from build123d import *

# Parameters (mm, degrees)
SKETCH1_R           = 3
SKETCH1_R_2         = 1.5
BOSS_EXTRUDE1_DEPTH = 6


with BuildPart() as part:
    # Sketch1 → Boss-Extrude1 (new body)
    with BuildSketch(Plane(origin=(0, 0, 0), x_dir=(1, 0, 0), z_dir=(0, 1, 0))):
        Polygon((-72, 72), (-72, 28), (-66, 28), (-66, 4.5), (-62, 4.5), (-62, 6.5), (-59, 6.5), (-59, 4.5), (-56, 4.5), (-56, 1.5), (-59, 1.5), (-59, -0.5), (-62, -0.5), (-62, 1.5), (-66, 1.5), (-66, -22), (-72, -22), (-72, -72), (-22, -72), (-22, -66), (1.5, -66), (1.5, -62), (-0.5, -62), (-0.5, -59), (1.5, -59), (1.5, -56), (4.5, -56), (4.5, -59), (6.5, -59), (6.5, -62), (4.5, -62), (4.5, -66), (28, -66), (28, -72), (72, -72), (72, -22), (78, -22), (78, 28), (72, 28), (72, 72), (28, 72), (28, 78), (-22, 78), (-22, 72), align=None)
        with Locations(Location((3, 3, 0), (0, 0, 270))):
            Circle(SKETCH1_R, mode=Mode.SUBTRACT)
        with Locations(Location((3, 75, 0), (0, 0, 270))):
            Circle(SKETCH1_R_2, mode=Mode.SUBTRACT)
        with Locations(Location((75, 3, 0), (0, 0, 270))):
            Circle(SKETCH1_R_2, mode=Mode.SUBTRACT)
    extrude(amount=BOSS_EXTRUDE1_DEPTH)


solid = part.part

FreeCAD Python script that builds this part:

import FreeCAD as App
import Part
import Sketcher
Q = App.Units.Quantity


def add_polygon(sketch, points):
    """Adds a closed chain of lines whose ends are joined by coincident constraints."""
    first, n = sketch.GeometryCount, len(points)
    for a, b in zip(points, points[1:] + points[:1]):
        sketch.addGeometry(Part.LineSegment(App.Vector(*a, 0), App.Vector(*b, 0)), False)
    for i in range(n):
        sketch.addConstraint(Sketcher.Constraint("Coincident", first + i, 2, first + (i + 1) % n, 1))

doc = App.newDocument("Part")
body = doc.addObject("PartDesign::Body", "Body")

# Sketch on XZ plane
sketch1 = body.newObject("Sketcher::SketchObject", "Sketch")
sketch1.AttachmentSupport = (doc.getObject("XZ_Plane"), [""])
sketch1.MapMode = "FlatFace"
add_polygon(sketch1, [(-72, -72), (-72, -28), (-66, -28), (-66, -4.5), (-62, -4.5), (-62, -6.5), (-59, -6.5), (-59, -4.5), (-56, -4.5), (-56, -1.5), (-59, -1.5), (-59, 0.5), (-62, 0.5), (-62, -1.5), (-66, -1.5), (-66, 22), (-72, 22), (-72, 72), (-22, 72), (-22, 66), (1.5, 66), (1.5, 62), (-0.5, 62), (-0.5, 59), (1.5, 59), (1.5, 56), (4.5, 56), (4.5, 59), (6.5, 59), (6.5, 62), (4.5, 62), (4.5, 66), (28, 66), (28, 72), (72, 72), (72, 22), (78, 22), (78, -28), (72, -28), (72, -72), (28, -72), (28, -78), (-22, -78), (-22, -72)])  # lines 0-43
sketch1.addGeometry(Part.Circle(App.Vector(3, -3, 0), App.Vector(0, 0, 1), 3), False)  # 44
sketch1.addGeometry(Part.Circle(App.Vector(75, -3, 0), App.Vector(0, 0, 1), 1.5), False)  # 45
sketch1.addGeometry(Part.Circle(App.Vector(3, -75, 0), App.Vector(0, 0, 1), 1.5), False)  # 46
sketch1.addConstraint(Sketcher.Constraint("Vertical", 0))
sketch1.addConstraint(Sketcher.Constraint("Horizontal", 1))
sketch1.addConstraint(Sketcher.Constraint("Vertical", 2))
sketch1.addConstraint(Sketcher.Constraint("Horizontal", 3))
sketch1.addConstraint(Sketcher.Constraint("Vertical", 4))
sketch1.addConstraint(Sketcher.Constraint("Horizontal", 5))
sketch1.addConstraint(Sketcher.Constraint("Vertical", 6))
sketch1.addConstraint(Sketcher.Constraint("Horizontal", 7))
sketch1.addConstraint(Sketcher.Constraint("Vertical", 8))
sketch1.addConstraint(Sketcher.Constraint("Horizontal", 9))
sketch1.addConstraint(Sketcher.Constraint("Vertical", 10))
sketch1.addConstraint(Sketcher.Constraint("Horizontal", 11))
sketch1.addConstraint(Sketcher.Constraint("Vertical", 12))
sketch1.addConstraint(Sketcher.Constraint("Horizontal", 13))
sketch1.addConstraint(Sketcher.Constraint("Vertical", 14))
sketch1.addConstraint(Sketcher.Constraint("Horizontal", 15))
sketch1.addConstraint(Sketcher.Constraint("Vertical", 16))
sketch1.addConstraint(Sketcher.Constraint("Horizontal", 17))
sketch1.addConstraint(Sketcher.Constraint("Vertical", 18))
sketch1.addConstraint(Sketcher.Constraint("Horizontal", 19))
sketch1.addConstraint(Sketcher.Constraint("Vertical", 20))
sketch1.addConstraint(Sketcher.Constraint("Horizontal", 21))
sketch1.addConstraint(Sketcher.Constraint("Vertical", 22))
sketch1.addConstraint(Sketcher.Constraint("Horizontal", 23))
sketch1.addConstraint(Sketcher.Constraint("Vertical", 24))
sketch1.addConstraint(Sketcher.Constraint("Horizontal", 25))
sketch1.addConstraint(Sketcher.Constraint("Vertical", 26))
sketch1.addConstraint(Sketcher.Constraint("Horizontal", 27))
sketch1.addConstraint(Sketcher.Constraint("Vertical", 28))
sketch1.addConstraint(Sketcher.Constraint("Horizontal", 29))
sketch1.addConstraint(Sketcher.Constraint("Vertical", 30))
sketch1.addConstraint(Sketcher.Constraint("Horizontal", 31))
sketch1.addConstraint(Sketcher.Constraint("Vertical", 32))
sketch1.addConstraint(Sketcher.Constraint("Horizontal", 33))
sketch1.addConstraint(Sketcher.Constraint("Vertical", 34))
sketch1.addConstraint(Sketcher.Constraint("Horizontal", 35))
sketch1.addConstraint(Sketcher.Constraint("Vertical", 36))
sketch1.addConstraint(Sketcher.Constraint("Horizontal", 37))
sketch1.addConstraint(Sketcher.Constraint("Vertical", 38))
sketch1.addConstraint(Sketcher.Constraint("Horizontal", 39))
sketch1.addConstraint(Sketcher.Constraint("Vertical", 40))
sketch1.addConstraint(Sketcher.Constraint("Horizontal", 41))
sketch1.addConstraint(Sketcher.Constraint("Vertical", 42))
sketch1.addConstraint(Sketcher.Constraint("Horizontal", 43))
sketch1.addConstraint(Sketcher.Constraint("Equal", 45, 46))
sketch1.addConstraint(Sketcher.Constraint("Symmetric", 16, 2, 38, 2, -1, 1))
sketch1.addConstraint(Sketcher.Constraint("Symmetric", 33, 2, 43, 2, -1, 1))
sketch1.addConstraint(Sketcher.Constraint("Symmetric", 16, 2, 33, 2, -2))
sketch1.addConstraint(Sketcher.Constraint("Horizontal", 44, 3, 45, 3))
sketch1.addConstraint(Sketcher.Constraint("Horizontal", 3, 2, 6, 2))
sketch1.addConstraint(Sketcher.Constraint("Horizontal", 9, 2, 12, 2))
sketch1.addConstraint(Sketcher.Constraint("Horizontal", 23, 2, 26, 2))
sketch1.addConstraint(Sketcher.Constraint("Horizontal", 21, 2, 28, 2))
sketch1.addConstraint(Sketcher.Constraint("Horizontal", 19, 2, 30, 2))
sketch1.addConstraint(Sketcher.Constraint("Horizontal", 15, 2, 34, 2))
sketch1.addConstraint(Sketcher.Constraint("Horizontal", 1, 2, 36, 2))
sketch1.addConstraint(Sketcher.Constraint("Vertical", 44, 3, 46, 3))
sketch1.addConstraint(Sketcher.Constraint("Vertical", 6, 2, 9, 2))
sketch1.addConstraint(Sketcher.Constraint("Vertical", 4, 2, 11, 2))
sketch1.addConstraint(Sketcher.Constraint("Vertical", 2, 2, 13, 2))
sketch1.addConstraint(Sketcher.Constraint("Vertical", 20, 2, 23, 2))
sketch1.addConstraint(Sketcher.Constraint("Vertical", 26, 2, 29, 2))
sketch1.addConstraint(Sketcher.Constraint("Vertical", 32, 2, 39, 2))
sketch1.addConstraint(Sketcher.Constraint("Vertical", 18, 2, 41, 2))
sketch1.addConstraint(Sketcher.Constraint("Equal", 5, 7))
sketch1.addConstraint(Sketcher.Constraint("Equal", 11, 25))
sketch1.addConstraint(Sketcher.Constraint("Equal", 23, 27))
sketch1.addConstraint(Sketcher.Constraint("Equal", 19, 31))
sketch1.addConstraint(Sketcher.Constraint("Equal", 15, 35))
sketch1.addConstraint(Sketcher.Constraint("Equal", 17, 41))
sketch1.addConstraint(Sketcher.Constraint("Equal", 39, 0))
sketch1.addConstraint(Sketcher.Constraint("Equal", 31, 2))
sketch1.addConstraint(Sketcher.Constraint("Equal", 29, 4))
sketch1.addConstraint(Sketcher.Constraint("Equal", 25, 8))
sketch1.addConstraint(Sketcher.Constraint("Equal", 6, 10))
sketch1.addConstraint(Sketcher.Constraint("Equal", 2, 14))
sketch1.addConstraint(Sketcher.Constraint("Equal", 43, 16))
sketch1.addConstraint(Sketcher.Constraint("Equal", 37, 18))
sketch1.addConstraint(Sketcher.Constraint("Equal", 13, 20))
sketch1.addConstraint(Sketcher.Constraint("Equal", 8, 22))
sketch1.addConstraint(Sketcher.Constraint("Equal", 22, 24))
sketch1.addConstraint(Sketcher.Constraint("Equal", 32, 40))
sketch1.addConstraint(Sketcher.Constraint("Diameter", 44, Q("6 mm")))
sketch1.addConstraint(Sketcher.Constraint("Diameter", 45, Q("3 mm")))
sketch1.addConstraint(Sketcher.Constraint("DistanceX", 1, 1, 1, 2, Q("6 mm")))
sketch1.addConstraint(Sketcher.Constraint("DistanceX", 3, 1, 3, 2, Q("4 mm")))
sketch1.addConstraint(Sketcher.Constraint("DistanceX", 5, 1, 5, 2, Q("3 mm")))
sketch1.addConstraint(Sketcher.Constraint("DistanceX", 17, 1, 17, 2, Q("50 mm")))
sketch1.addConstraint(Sketcher.Constraint("DistanceX", 21, 2, 21, 1, Q("2 mm")))
sketch1.addConstraint(Sketcher.Constraint("DistanceX", 33, 1, 33, 2, Q("44 mm")))
sketch1.addConstraint(Sketcher.Constraint("DistanceX", -1, 1, 44, 3, Q("3 mm")))
sketch1.addConstraint(Sketcher.Constraint("DistanceY", 44, 3, -1, 1, Q("3 mm")))
sketch1.addConstraint(Sketcher.Constraint("DistanceX", -1, 1, 45, 3, Q("75 mm")))
sketch1.addConstraint(Sketcher.Constraint("DistanceY", 46, 3, -1, 1, Q("75 mm")))
pad1 = body.newObject("PartDesign::Pad", "Pad")
pad1.Profile = sketch1
pad1.Length = 6
pad1.Reversed = True

doc.recompute()
